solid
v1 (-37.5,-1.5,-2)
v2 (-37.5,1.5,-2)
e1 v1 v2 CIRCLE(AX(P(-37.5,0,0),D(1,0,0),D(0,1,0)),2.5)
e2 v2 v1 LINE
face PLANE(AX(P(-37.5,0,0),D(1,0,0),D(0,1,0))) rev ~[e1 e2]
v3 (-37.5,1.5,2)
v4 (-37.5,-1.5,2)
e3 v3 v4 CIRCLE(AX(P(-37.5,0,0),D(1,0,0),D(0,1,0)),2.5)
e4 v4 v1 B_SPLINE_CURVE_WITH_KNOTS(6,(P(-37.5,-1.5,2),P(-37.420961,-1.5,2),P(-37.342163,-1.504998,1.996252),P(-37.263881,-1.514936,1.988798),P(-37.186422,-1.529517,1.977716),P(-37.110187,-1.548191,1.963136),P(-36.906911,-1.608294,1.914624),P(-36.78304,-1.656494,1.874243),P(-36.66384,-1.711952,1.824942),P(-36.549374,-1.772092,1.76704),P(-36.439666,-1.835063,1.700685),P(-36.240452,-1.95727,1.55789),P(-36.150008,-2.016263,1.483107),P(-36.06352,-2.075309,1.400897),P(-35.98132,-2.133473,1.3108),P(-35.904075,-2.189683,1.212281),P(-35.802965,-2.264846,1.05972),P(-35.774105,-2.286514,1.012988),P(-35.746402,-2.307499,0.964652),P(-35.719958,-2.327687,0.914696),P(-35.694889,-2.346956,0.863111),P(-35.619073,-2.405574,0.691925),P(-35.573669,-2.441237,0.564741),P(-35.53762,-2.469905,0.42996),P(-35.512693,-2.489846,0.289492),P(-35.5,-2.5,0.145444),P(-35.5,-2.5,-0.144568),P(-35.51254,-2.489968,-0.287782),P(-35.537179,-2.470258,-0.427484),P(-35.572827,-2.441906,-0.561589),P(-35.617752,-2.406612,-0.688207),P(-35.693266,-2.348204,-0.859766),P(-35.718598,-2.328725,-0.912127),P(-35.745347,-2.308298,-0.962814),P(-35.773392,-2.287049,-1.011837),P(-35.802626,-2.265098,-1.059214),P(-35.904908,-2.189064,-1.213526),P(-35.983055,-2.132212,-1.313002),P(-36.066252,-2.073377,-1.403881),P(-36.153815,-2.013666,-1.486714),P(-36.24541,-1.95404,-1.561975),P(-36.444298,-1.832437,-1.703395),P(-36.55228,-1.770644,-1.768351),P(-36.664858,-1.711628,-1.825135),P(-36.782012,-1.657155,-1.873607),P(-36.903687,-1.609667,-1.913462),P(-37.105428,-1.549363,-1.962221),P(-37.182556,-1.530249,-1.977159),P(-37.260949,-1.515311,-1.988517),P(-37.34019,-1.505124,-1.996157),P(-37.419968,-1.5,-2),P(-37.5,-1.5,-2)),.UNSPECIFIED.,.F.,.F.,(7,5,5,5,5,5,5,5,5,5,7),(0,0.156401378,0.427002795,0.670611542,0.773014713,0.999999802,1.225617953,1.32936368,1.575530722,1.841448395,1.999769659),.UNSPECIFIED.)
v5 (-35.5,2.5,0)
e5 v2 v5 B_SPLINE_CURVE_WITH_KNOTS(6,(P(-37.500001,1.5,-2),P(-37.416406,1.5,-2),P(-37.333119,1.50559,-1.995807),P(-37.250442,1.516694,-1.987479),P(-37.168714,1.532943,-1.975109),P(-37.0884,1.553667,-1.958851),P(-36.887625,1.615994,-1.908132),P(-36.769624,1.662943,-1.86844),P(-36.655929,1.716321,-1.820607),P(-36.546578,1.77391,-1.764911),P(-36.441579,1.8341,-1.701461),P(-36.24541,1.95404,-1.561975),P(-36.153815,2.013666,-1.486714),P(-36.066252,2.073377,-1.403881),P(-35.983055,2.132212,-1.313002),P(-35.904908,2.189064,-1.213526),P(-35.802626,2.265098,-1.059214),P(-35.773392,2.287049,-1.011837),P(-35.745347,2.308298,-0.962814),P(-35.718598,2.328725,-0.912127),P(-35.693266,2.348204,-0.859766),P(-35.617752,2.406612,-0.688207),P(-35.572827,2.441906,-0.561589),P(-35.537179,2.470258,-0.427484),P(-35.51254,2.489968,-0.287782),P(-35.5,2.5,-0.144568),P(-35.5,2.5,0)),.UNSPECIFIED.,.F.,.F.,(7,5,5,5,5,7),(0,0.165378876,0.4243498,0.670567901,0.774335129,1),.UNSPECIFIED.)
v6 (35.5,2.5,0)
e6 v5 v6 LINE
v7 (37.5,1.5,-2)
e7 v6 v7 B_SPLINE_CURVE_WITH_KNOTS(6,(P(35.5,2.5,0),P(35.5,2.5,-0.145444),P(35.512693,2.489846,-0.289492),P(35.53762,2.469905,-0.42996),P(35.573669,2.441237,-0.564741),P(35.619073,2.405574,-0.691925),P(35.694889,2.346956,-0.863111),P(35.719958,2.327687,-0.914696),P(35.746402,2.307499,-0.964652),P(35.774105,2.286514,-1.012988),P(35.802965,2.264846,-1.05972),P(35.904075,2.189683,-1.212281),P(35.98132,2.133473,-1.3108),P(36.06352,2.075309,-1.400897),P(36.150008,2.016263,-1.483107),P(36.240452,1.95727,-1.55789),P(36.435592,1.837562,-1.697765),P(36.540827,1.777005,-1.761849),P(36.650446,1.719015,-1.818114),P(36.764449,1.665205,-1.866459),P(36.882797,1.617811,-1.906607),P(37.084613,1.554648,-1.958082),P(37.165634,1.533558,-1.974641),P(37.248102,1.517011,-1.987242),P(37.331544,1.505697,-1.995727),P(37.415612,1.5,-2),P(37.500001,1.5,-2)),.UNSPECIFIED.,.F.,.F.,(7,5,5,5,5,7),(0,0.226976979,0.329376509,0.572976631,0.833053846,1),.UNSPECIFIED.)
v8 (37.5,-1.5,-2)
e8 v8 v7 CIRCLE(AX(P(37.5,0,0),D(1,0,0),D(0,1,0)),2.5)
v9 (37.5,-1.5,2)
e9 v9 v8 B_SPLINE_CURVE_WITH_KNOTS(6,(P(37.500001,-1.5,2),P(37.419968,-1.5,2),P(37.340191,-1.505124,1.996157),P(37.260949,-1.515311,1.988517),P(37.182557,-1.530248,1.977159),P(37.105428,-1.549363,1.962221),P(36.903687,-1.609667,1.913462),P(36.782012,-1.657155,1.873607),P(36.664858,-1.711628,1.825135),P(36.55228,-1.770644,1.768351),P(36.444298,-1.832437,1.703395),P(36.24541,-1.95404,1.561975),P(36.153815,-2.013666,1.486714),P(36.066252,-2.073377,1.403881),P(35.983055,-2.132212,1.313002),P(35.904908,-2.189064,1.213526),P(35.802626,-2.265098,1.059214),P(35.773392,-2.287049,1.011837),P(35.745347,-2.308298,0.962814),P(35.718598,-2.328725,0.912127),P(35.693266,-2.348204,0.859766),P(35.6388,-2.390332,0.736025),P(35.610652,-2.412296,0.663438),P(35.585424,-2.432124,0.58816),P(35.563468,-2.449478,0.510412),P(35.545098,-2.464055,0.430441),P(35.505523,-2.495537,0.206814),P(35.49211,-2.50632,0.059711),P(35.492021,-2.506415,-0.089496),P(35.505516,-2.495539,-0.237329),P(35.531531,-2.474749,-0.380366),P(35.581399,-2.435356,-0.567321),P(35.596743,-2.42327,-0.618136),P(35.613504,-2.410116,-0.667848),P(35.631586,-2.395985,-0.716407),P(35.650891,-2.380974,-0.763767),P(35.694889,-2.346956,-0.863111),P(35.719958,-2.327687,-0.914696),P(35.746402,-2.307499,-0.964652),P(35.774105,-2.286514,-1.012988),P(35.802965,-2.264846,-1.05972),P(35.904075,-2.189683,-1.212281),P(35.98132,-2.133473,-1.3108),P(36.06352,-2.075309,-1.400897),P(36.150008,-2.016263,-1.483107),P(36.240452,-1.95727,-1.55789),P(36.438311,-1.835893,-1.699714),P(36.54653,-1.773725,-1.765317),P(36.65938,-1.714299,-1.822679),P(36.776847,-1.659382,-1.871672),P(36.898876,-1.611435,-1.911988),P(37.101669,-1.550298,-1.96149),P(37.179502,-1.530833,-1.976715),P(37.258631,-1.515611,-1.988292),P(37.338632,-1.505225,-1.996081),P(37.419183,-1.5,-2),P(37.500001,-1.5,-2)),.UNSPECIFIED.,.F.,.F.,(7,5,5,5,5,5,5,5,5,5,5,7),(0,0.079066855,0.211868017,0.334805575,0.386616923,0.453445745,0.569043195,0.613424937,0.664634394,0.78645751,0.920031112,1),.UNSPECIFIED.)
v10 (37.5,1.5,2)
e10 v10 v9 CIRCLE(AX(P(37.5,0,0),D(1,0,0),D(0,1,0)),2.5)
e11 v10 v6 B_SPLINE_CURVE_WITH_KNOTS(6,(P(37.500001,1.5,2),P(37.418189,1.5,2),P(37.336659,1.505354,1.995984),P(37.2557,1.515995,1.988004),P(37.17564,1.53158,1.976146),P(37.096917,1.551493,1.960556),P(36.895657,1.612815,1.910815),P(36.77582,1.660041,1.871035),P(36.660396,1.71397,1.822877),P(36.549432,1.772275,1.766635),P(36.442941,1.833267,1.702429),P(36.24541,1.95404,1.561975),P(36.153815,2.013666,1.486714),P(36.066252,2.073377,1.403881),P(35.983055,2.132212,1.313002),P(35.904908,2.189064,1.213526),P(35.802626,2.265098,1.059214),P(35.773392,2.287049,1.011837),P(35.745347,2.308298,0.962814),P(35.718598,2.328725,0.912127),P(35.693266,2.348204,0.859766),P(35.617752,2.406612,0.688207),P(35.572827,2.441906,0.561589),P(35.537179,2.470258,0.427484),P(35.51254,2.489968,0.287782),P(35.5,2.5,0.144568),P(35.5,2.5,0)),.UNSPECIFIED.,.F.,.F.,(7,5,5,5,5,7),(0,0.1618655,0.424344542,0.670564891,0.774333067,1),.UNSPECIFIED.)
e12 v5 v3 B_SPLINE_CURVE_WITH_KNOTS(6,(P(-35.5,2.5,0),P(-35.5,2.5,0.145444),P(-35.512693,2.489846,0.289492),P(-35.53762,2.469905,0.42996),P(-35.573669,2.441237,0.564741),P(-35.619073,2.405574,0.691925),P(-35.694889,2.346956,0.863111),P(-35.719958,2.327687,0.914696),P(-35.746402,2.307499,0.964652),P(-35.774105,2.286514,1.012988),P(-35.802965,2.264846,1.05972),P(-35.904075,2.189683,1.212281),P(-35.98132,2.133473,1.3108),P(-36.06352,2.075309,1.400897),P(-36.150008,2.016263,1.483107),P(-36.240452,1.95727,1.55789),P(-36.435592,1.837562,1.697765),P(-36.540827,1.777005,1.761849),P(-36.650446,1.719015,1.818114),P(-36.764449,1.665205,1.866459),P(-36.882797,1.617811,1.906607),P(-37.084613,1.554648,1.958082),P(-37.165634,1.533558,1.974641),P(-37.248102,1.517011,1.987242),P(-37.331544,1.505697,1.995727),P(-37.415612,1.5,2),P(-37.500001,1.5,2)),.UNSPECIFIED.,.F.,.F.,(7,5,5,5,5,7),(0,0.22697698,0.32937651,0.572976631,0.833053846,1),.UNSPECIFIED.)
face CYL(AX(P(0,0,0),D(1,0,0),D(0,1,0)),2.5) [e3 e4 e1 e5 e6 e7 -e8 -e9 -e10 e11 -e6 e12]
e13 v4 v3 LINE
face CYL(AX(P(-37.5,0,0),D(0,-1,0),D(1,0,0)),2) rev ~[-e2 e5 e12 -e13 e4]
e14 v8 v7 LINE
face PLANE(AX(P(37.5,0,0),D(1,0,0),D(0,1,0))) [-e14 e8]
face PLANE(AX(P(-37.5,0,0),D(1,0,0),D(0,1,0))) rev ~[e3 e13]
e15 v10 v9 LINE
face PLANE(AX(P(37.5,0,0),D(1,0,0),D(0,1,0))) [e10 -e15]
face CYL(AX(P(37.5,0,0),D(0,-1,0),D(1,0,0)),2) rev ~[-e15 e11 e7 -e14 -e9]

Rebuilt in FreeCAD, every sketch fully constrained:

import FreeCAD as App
import Part
import Sketcher
from FreeCAD import Vector
Q = App.Units.Quantity

doc = App.newDocument("Part")
body = doc.addObject("PartDesign::Body", "Body")

# Sketch on YZ plane
sketch1 = body.newObject("Sketcher::SketchObject", "Sketch")
sketch1.AttachmentSupport = (doc.getObject("YZ_Plane"), [""])
sketch1.MapMode = "FlatFace"
sketch1.addGeometry(Part.Circle(Vector(0, 0, 0), Vector(0, 0, 1), 2.5), False)
sketch1.addConstraint([
    Sketcher.Constraint("Coincident", 0, 3, -1, 1),
    Sketcher.Constraint("Diameter", 0, Q("5 mm")),
])
pad1 = body.newObject("PartDesign::Pad", "Pad")
pad1.Profile = sketch1
pad1.Length = 75
pad1.Midplane = True

# Sketch on XZ plane
sketch2 = body.newObject("Sketcher::SketchObject", "Sketch001")
sketch2.AttachmentSupport = (doc.getObject("XZ_Plane"), [""])
sketch2.MapMode = "FlatFace"
sketch2.addGeometry([
    Part.Circle(Vector(-37.5, 0, 0), Vector(0, 0, 1), 2),
    Part.Circle(Vector(37.5, 0, 0), Vector(0, 0, 1), 2),
], False)
sketch2.addConstraint([
    Sketcher.Constraint("Equal", 0, 1),
    Sketcher.Constraint("Symmetric", 0, 3, 1, 3, -1, 1),
    Sketcher.Constraint("PointOnObject", 0, 3, -1),
    Sketcher.Constraint("Diameter", 0, Q("4 mm")),
    Sketcher.Constraint("DistanceX", 0, 3, 1, 3, Q("75 mm")),
])
pocket1 = body.newObject("PartDesign::Pocket", "Pocket")
pocket1.Profile = sketch2
pocket1.Type = "ThroughAll"
pocket1.Midplane = True

doc.recompute()
